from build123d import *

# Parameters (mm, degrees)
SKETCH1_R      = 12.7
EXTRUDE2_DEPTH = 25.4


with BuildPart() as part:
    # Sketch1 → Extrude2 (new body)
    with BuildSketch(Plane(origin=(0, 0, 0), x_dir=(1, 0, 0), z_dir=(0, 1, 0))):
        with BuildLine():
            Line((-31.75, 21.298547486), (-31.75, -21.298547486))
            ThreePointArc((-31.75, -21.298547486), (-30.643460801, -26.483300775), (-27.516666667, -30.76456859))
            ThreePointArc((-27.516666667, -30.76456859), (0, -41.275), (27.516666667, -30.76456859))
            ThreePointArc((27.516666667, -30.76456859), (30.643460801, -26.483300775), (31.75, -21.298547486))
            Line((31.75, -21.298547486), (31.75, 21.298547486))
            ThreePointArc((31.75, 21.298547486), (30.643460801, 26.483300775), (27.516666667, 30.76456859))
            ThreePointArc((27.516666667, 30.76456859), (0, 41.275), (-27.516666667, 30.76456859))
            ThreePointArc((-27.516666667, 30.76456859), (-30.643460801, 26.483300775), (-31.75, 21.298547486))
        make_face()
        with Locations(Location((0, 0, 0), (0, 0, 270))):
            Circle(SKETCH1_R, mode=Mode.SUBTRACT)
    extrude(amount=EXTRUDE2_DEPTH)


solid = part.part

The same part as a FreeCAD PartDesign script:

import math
import FreeCAD as App
import Part
import Sketcher
Q = App.Units.Quantity

doc = App.newDocument("Part")
body = doc.addObject("PartDesign::Body", "Body")

# Sketch on XZ plane
sketch1 = body.newObject("Sketcher::SketchObject", "Sketch")
sketch1.AttachmentSupport = (doc.getObject("XZ_Plane"), [""])
sketch1.MapMode = "FlatFace"
sketch1.addGeometry(Part.LineSegment(App.Vector(-32, -21, 0), App.Vector(-32, 21, 0)), False)
sketch1.addGeometry(Part.ArcOfCircle(Part.Circle(App.Vector(-19, 21, 0), App.Vector(0, 0, 1), 13), math.radians(132), math.radians(180)), False)
sketch1.addGeometry(Part.ArcOfCircle(Part.Circle(App.Vector(0, 0, 0), App.Vector(0, 0, 1), 41), math.radians(48), math.radians(132)), False)
sketch1.addGeometry(Part.ArcOfCircle(Part.Circle(App.Vector(19, 21, 0), App.Vector(0, 0, 1), 13), math.radians(0), math.radians(48)), False)
sketch1.addGeometry(Part.LineSegment(App.Vector(32, 21, 0), App.Vector(32, -21, 0)), False)
sketch1.addGeometry(Part.ArcOfCircle(Part.Circle(App.Vector(19, -21, 0), App.Vector(0, 0, 1), 13), math.radians(-48), math.radians(0)), False)
sketch1.addGeometry(Part.ArcOfCircle(Part.Circle(App.Vector(0, 0, 0), App.Vector(0, 0, 1), 41), math.radians(-132), math.radians(-48)), False)
sketch1.addGeometry(Part.ArcOfCircle(Part.Circle(App.Vector(-19, -21, 0), App.Vector(0, 0, 1), 13), math.radians(180), math.radians(228)), False)
sketch1.addGeometry(Part.Circle(App.Vector(0, 0, 0), App.Vector(0, 0, 1), 13), False)
sketch1.addConstraint(Sketcher.Constraint("Tangent", 0, 2, 1, 2))
sketch1.addConstraint(Sketcher.Constraint("Tangent", 1, 1, 2, 2))
sketch1.addConstraint(Sketcher.Constraint("Tangent", 2, 1, 3, 2))
sketch1.addConstraint(Sketcher.Constraint("Tangent", 3, 1, 4, 1))
sketch1.addConstraint(Sketcher.Constraint("Tangent", 4, 2, 5, 2))
sketch1.addConstraint(Sketcher.Constraint("Tangent", 5, 1, 6, 2))
sketch1.addConstraint(Sketcher.Constraint("Tangent", 6, 1, 7, 2))
sketch1.addConstraint(Sketcher.Constraint("Tangent", 7, 1, 0, 1))
sketch1.addConstraint(Sketcher.Constraint("Vertical", 0))
sketch1.addConstraint(Sketcher.Constraint("Vertical", 4))
sketch1.addConstraint(Sketcher.Constraint("Coincident", 2, 3, -1, 1))
sketch1.addConstraint(Sketcher.Constraint("Coincident", 6, 3, -1, 1))
sketch1.addConstraint(Sketcher.Constraint("Coincident", 8, 3, -1, 1))
sketch1.addConstraint(Sketcher.Constraint("Equal", 1, 3))
sketch1.addConstraint(Sketcher.Constraint("Equal", 3, 5))
sketch1.addConstraint(Sketcher.Constraint("Equal", 2, 6))
sketch1.addConstraint(Sketcher.Constraint("Equal", 5, 7))
sketch1.addConstraint(Sketcher.Constraint("Equal", 7, 8))
sketch1.addConstraint(Sketcher.Constraint("Horizontal", 1, 3, 3, 3))
sketch1.addConstraint(Sketcher.Constraint("Diameter", 8, Q("1 in")))
sketch1.addConstraint(Sketcher.Constraint("Radius", 2, Q("1.625 in")))
sketch1.addConstraint(Sketcher.Constraint("DistanceX", 1, 3, 3, 3, Q("1.5 in")))
pad1 = body.newObject("PartDesign::Pad", "Pad")
pad1.Profile = sketch1
pad1.Length = Q("1 in")
pad1.Reversed = True

doc.recompute()
